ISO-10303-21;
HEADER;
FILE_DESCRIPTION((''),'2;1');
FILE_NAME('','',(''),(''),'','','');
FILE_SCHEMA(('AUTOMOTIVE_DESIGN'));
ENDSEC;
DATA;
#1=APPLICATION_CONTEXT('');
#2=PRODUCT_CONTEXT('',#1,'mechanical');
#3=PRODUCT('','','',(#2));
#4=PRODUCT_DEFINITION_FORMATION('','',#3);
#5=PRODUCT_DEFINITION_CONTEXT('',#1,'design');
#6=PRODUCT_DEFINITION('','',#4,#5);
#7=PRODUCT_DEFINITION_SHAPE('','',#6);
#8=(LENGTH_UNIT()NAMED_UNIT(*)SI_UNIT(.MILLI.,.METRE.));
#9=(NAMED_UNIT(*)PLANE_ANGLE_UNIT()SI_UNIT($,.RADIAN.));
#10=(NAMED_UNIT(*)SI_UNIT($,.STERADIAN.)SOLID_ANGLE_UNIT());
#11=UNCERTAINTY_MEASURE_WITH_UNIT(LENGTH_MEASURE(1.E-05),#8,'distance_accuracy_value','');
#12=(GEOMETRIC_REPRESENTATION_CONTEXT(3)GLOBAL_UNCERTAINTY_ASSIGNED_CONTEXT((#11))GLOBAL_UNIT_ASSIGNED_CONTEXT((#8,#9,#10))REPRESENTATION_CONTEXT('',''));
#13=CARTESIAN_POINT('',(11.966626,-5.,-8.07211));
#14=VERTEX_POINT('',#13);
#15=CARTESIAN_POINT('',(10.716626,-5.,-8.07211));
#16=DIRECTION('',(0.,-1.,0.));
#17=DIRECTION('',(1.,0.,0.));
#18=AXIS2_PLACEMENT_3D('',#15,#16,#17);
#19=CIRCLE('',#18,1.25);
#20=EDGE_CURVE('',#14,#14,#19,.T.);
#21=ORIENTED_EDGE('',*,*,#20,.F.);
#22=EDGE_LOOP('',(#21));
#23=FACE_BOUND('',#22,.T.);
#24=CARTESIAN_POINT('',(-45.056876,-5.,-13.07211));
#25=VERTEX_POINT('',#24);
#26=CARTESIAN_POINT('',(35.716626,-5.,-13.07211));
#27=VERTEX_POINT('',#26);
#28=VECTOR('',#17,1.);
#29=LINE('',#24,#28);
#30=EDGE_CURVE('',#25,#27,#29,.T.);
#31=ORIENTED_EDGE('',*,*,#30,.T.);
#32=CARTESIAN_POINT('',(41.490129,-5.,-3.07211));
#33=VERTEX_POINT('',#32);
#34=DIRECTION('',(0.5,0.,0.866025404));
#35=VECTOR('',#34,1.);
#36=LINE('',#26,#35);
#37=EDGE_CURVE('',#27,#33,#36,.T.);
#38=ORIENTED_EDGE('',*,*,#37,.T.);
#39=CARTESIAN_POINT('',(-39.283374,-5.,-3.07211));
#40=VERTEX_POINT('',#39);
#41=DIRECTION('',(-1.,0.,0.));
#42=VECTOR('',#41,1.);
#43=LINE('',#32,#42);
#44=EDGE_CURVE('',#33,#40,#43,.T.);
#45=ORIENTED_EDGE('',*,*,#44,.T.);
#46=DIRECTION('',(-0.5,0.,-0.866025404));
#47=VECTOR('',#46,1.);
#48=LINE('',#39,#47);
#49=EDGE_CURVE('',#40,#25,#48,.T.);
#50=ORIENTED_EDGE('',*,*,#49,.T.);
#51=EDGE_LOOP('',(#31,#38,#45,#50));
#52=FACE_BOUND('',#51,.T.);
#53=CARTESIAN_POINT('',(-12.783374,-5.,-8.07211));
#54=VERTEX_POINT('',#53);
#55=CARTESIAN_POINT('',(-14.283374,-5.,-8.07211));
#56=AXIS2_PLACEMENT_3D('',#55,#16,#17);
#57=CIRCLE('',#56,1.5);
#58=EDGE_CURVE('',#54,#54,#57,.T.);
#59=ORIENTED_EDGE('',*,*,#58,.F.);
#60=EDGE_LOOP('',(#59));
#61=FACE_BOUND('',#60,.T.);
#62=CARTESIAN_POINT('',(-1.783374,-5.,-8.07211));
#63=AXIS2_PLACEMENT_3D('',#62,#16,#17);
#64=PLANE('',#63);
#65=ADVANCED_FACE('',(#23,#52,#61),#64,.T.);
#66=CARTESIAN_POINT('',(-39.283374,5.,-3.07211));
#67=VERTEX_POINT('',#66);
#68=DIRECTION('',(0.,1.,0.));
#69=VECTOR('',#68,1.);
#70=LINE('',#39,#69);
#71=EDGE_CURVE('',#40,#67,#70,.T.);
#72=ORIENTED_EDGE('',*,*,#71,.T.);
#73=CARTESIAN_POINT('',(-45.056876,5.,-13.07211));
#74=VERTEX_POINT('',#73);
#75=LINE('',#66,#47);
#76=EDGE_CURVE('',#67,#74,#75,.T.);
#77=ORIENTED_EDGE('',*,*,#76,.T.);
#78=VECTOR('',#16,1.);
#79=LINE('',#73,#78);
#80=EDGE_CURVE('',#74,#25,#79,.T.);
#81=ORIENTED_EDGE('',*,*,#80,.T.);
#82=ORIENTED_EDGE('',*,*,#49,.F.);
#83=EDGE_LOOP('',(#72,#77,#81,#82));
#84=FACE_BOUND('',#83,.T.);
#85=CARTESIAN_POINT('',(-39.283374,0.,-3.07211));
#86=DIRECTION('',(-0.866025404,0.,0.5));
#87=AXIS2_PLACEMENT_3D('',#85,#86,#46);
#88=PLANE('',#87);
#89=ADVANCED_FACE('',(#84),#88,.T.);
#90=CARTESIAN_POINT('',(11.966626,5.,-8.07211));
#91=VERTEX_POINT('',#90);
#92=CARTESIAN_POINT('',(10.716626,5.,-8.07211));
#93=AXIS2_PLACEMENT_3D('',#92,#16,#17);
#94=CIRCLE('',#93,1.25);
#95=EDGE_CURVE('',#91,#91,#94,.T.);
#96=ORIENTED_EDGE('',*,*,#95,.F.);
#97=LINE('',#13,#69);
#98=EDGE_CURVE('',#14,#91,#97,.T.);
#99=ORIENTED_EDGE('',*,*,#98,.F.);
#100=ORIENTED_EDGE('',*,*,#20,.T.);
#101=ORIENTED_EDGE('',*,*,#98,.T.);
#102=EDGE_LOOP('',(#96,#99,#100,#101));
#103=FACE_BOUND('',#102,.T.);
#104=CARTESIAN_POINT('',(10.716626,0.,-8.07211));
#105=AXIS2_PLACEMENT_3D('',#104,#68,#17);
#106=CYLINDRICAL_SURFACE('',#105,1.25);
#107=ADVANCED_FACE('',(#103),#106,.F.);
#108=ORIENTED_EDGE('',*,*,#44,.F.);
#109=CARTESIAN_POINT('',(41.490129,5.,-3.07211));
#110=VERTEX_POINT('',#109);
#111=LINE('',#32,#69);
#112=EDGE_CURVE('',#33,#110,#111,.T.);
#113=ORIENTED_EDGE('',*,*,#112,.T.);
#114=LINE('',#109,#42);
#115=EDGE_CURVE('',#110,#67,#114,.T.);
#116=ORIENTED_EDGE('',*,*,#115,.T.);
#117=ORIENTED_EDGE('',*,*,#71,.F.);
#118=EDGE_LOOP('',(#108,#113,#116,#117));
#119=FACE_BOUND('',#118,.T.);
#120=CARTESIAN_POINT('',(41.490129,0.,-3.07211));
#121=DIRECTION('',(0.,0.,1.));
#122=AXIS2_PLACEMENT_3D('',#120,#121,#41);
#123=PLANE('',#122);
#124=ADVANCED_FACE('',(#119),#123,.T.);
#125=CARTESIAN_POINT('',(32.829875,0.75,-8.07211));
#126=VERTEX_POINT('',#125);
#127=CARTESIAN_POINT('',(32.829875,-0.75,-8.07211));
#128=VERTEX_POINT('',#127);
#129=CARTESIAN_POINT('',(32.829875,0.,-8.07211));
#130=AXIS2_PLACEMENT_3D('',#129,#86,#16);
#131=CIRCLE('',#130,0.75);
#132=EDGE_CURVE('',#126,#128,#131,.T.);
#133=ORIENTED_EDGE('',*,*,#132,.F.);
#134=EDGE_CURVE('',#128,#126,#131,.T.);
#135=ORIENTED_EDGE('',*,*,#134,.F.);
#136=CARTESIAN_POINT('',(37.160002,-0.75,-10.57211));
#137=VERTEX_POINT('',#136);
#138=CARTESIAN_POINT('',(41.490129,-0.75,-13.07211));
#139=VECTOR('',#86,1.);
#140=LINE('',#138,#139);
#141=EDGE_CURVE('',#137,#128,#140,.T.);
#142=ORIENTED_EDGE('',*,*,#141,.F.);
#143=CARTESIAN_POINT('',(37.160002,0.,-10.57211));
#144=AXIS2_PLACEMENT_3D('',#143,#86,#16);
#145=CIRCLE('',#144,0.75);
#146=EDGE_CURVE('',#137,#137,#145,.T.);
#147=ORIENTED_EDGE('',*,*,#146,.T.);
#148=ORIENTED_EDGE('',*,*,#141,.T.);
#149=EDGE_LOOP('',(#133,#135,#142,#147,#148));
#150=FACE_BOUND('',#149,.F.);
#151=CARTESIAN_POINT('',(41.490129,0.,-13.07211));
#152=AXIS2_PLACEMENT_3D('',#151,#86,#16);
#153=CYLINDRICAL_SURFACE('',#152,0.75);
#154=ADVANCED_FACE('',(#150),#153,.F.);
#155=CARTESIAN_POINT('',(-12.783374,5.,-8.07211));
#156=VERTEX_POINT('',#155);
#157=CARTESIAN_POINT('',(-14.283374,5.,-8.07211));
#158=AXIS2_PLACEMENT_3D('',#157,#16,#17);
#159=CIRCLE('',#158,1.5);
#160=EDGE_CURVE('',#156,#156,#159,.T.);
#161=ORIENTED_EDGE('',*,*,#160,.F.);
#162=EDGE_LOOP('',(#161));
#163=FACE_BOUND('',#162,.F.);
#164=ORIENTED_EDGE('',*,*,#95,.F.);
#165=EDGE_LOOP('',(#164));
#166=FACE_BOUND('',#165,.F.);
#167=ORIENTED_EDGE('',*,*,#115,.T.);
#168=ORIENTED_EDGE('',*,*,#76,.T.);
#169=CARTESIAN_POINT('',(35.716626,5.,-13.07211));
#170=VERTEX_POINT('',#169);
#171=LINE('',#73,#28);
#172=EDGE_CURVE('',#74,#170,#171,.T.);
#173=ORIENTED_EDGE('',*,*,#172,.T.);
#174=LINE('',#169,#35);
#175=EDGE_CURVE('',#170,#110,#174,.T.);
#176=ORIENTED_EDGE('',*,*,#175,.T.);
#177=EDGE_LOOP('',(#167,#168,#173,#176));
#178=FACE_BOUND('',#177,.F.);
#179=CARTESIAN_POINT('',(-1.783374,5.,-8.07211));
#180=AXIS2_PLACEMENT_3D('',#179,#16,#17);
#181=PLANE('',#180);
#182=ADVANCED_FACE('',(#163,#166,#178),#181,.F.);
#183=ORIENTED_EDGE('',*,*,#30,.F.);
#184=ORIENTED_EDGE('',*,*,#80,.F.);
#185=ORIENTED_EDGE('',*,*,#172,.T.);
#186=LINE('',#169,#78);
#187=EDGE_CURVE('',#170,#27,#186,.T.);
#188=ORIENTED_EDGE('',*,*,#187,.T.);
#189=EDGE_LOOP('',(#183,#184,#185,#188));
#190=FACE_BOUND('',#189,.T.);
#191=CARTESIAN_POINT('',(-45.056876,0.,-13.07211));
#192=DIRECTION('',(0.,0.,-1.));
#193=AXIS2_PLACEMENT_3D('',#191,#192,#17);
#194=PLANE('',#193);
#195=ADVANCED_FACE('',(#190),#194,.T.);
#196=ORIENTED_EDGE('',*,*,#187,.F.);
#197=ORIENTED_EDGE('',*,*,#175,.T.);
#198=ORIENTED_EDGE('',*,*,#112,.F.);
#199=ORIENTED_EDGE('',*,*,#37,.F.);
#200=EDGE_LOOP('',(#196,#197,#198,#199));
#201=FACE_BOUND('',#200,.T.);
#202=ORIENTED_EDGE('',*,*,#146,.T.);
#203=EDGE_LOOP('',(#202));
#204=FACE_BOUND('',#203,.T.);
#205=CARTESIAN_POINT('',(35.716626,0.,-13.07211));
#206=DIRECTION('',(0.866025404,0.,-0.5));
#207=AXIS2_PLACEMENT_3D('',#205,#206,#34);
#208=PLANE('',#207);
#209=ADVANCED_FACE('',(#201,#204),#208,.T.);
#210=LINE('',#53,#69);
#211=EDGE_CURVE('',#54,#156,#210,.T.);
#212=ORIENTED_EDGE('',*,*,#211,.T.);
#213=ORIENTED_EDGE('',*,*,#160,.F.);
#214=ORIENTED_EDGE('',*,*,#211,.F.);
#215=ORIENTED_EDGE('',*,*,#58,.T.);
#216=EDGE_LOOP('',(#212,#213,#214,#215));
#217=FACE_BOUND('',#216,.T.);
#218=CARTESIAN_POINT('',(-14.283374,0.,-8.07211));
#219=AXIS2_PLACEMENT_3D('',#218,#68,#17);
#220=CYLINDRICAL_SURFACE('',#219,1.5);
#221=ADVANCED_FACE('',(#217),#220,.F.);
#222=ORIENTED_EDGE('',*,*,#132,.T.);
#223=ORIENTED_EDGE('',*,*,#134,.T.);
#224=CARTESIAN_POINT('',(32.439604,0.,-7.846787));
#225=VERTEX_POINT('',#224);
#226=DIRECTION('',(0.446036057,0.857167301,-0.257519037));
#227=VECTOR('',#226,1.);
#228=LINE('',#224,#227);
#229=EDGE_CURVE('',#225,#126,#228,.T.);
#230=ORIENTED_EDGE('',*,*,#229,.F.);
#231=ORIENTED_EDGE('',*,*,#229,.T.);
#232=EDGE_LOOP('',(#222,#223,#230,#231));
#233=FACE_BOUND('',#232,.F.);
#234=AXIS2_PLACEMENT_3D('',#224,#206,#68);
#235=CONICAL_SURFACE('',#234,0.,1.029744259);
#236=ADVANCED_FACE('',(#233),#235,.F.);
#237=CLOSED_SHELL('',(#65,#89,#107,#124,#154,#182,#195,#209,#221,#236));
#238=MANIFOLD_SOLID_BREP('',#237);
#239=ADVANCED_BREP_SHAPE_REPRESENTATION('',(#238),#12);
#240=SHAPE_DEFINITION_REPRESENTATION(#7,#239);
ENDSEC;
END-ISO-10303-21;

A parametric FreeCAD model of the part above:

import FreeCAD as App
import Part
import Sketcher

V = App.Vector
Q = App.Units.Quantity


def add_polygon(sketch, points):
    """Adds a closed chain of lines whose ends are joined by coincident constraints."""
    first, n = sketch.GeometryCount, len(points)
    for a, b in zip(points, points[1:] + points[:1]):
        sketch.addGeometry(Part.LineSegment(App.Vector(*a, 0), App.Vector(*b, 0)), False)
    for i in range(n):
        sketch.addConstraint(Sketcher.Constraint("Coincident", first + i, 2, first + (i + 1) % n, 1))

doc = App.newDocument("Part")
body = doc.addObject("PartDesign::Body", "Body")

sketch1 = body.newObject("Sketcher::SketchObject", "Sketch")
sketch1.AttachmentSupport = (doc.getObject("XZ_Plane"), [""])
sketch1.MapMode = "FlatFace"
add_polygon(sketch1, [(-39.3, -3.1), (-45.1, -13.1), (35.7, -13.1), (41.5, -3.1)])
sketch1.addGeometry(Part.Circle(V(-14.3, -8.1, 0), V(0, 0, 1), 1.5), False)
sketch1.addGeometry(Part.Circle(V(10.7, -8.1, 0), V(0, 0, 1), 1.2), False)
sketch1.addConstraint(Sketcher.Constraint("Horizontal", 1))
sketch1.addConstraint(Sketcher.Constraint("Horizontal", 3))
sketch1.addConstraint(Sketcher.Constraint("Parallel", 0, 2))
sketch1.addConstraint(Sketcher.Constraint("Horizontal", 4, 3, 5, 3))
sketch1.addConstraint(Sketcher.Constraint("Diameter", 4, Q("3 mm")))
sketch1.addConstraint(Sketcher.Constraint("Diameter", 5, Q("2.5 mm")))
sketch1.addConstraint(Sketcher.Constraint("Angle", 0, Q("-120 deg")))
sketch1.addConstraint(Sketcher.Constraint("DistanceX", 4, 3, 5, 3, Q("25 mm")))
sketch1.addConstraint(Sketcher.Constraint("DistanceY", 0, 2, 4, 3, Q("5 mm")))
sketch1.addConstraint(Sketcher.Constraint("DistanceX", 5, 3, 1, 2, Q("25 mm")))
sketch1.addConstraint(Sketcher.Constraint("DistanceY", 1, 2, 2, 2, Q("10 mm")))
sketch1.addConstraint(Sketcher.Constraint("DistanceX", 3, 2, 4, 3, Q("25 mm")))
sketch1.addConstraint(Sketcher.Constraint("DistanceY", 4, 3, -1, 1, Q("8.07211 mm")))
sketch1.addConstraint(Sketcher.Constraint("DistanceX", -1, 1, 2, 2, Q("41.490129 mm")))
pad1 = body.newObject("PartDesign::Pad", "Pad")
pad1.Profile = sketch1
pad1.Length = 10
pad1.Midplane = True

sketch2 = body.newObject("Sketcher::SketchObject", "Sketch001")
sketch2.Placement = App.Placement(V(32.447859, 0, -18.73378), App.Rotation(V(0, 1, 0), V(0.5, 0, 0.866025404), V(0.866025404, 0, -0.5), "ZXY"))
sketch2.addGeometry(Part.Circle(V(0, 9.4, 0), V(0, 0, 1), 0.8), False)
sketch2.addConstraint(Sketcher.Constraint("PointOnObject", 0, 3, -2))
sketch2.addConstraint(Sketcher.Constraint("Diameter", 0, Q("1.5 mm")))
sketch2.addConstraint(Sketcher.Constraint("DistanceY", -1, 1, 0, 3, Q("9.424285 mm")))
doc.recompute()
hole = body.newObject("PartDesign::Hole", "Hole")
hole.Profile = sketch2
hole.ThreadType = "None"
hole.Diameter = 1.5
hole.DepthType = "Dimension"
hole.Depth = 5
hole.DrillPoint = "Angled"
hole.DrillPointAngle = 118

doc.recompute()
